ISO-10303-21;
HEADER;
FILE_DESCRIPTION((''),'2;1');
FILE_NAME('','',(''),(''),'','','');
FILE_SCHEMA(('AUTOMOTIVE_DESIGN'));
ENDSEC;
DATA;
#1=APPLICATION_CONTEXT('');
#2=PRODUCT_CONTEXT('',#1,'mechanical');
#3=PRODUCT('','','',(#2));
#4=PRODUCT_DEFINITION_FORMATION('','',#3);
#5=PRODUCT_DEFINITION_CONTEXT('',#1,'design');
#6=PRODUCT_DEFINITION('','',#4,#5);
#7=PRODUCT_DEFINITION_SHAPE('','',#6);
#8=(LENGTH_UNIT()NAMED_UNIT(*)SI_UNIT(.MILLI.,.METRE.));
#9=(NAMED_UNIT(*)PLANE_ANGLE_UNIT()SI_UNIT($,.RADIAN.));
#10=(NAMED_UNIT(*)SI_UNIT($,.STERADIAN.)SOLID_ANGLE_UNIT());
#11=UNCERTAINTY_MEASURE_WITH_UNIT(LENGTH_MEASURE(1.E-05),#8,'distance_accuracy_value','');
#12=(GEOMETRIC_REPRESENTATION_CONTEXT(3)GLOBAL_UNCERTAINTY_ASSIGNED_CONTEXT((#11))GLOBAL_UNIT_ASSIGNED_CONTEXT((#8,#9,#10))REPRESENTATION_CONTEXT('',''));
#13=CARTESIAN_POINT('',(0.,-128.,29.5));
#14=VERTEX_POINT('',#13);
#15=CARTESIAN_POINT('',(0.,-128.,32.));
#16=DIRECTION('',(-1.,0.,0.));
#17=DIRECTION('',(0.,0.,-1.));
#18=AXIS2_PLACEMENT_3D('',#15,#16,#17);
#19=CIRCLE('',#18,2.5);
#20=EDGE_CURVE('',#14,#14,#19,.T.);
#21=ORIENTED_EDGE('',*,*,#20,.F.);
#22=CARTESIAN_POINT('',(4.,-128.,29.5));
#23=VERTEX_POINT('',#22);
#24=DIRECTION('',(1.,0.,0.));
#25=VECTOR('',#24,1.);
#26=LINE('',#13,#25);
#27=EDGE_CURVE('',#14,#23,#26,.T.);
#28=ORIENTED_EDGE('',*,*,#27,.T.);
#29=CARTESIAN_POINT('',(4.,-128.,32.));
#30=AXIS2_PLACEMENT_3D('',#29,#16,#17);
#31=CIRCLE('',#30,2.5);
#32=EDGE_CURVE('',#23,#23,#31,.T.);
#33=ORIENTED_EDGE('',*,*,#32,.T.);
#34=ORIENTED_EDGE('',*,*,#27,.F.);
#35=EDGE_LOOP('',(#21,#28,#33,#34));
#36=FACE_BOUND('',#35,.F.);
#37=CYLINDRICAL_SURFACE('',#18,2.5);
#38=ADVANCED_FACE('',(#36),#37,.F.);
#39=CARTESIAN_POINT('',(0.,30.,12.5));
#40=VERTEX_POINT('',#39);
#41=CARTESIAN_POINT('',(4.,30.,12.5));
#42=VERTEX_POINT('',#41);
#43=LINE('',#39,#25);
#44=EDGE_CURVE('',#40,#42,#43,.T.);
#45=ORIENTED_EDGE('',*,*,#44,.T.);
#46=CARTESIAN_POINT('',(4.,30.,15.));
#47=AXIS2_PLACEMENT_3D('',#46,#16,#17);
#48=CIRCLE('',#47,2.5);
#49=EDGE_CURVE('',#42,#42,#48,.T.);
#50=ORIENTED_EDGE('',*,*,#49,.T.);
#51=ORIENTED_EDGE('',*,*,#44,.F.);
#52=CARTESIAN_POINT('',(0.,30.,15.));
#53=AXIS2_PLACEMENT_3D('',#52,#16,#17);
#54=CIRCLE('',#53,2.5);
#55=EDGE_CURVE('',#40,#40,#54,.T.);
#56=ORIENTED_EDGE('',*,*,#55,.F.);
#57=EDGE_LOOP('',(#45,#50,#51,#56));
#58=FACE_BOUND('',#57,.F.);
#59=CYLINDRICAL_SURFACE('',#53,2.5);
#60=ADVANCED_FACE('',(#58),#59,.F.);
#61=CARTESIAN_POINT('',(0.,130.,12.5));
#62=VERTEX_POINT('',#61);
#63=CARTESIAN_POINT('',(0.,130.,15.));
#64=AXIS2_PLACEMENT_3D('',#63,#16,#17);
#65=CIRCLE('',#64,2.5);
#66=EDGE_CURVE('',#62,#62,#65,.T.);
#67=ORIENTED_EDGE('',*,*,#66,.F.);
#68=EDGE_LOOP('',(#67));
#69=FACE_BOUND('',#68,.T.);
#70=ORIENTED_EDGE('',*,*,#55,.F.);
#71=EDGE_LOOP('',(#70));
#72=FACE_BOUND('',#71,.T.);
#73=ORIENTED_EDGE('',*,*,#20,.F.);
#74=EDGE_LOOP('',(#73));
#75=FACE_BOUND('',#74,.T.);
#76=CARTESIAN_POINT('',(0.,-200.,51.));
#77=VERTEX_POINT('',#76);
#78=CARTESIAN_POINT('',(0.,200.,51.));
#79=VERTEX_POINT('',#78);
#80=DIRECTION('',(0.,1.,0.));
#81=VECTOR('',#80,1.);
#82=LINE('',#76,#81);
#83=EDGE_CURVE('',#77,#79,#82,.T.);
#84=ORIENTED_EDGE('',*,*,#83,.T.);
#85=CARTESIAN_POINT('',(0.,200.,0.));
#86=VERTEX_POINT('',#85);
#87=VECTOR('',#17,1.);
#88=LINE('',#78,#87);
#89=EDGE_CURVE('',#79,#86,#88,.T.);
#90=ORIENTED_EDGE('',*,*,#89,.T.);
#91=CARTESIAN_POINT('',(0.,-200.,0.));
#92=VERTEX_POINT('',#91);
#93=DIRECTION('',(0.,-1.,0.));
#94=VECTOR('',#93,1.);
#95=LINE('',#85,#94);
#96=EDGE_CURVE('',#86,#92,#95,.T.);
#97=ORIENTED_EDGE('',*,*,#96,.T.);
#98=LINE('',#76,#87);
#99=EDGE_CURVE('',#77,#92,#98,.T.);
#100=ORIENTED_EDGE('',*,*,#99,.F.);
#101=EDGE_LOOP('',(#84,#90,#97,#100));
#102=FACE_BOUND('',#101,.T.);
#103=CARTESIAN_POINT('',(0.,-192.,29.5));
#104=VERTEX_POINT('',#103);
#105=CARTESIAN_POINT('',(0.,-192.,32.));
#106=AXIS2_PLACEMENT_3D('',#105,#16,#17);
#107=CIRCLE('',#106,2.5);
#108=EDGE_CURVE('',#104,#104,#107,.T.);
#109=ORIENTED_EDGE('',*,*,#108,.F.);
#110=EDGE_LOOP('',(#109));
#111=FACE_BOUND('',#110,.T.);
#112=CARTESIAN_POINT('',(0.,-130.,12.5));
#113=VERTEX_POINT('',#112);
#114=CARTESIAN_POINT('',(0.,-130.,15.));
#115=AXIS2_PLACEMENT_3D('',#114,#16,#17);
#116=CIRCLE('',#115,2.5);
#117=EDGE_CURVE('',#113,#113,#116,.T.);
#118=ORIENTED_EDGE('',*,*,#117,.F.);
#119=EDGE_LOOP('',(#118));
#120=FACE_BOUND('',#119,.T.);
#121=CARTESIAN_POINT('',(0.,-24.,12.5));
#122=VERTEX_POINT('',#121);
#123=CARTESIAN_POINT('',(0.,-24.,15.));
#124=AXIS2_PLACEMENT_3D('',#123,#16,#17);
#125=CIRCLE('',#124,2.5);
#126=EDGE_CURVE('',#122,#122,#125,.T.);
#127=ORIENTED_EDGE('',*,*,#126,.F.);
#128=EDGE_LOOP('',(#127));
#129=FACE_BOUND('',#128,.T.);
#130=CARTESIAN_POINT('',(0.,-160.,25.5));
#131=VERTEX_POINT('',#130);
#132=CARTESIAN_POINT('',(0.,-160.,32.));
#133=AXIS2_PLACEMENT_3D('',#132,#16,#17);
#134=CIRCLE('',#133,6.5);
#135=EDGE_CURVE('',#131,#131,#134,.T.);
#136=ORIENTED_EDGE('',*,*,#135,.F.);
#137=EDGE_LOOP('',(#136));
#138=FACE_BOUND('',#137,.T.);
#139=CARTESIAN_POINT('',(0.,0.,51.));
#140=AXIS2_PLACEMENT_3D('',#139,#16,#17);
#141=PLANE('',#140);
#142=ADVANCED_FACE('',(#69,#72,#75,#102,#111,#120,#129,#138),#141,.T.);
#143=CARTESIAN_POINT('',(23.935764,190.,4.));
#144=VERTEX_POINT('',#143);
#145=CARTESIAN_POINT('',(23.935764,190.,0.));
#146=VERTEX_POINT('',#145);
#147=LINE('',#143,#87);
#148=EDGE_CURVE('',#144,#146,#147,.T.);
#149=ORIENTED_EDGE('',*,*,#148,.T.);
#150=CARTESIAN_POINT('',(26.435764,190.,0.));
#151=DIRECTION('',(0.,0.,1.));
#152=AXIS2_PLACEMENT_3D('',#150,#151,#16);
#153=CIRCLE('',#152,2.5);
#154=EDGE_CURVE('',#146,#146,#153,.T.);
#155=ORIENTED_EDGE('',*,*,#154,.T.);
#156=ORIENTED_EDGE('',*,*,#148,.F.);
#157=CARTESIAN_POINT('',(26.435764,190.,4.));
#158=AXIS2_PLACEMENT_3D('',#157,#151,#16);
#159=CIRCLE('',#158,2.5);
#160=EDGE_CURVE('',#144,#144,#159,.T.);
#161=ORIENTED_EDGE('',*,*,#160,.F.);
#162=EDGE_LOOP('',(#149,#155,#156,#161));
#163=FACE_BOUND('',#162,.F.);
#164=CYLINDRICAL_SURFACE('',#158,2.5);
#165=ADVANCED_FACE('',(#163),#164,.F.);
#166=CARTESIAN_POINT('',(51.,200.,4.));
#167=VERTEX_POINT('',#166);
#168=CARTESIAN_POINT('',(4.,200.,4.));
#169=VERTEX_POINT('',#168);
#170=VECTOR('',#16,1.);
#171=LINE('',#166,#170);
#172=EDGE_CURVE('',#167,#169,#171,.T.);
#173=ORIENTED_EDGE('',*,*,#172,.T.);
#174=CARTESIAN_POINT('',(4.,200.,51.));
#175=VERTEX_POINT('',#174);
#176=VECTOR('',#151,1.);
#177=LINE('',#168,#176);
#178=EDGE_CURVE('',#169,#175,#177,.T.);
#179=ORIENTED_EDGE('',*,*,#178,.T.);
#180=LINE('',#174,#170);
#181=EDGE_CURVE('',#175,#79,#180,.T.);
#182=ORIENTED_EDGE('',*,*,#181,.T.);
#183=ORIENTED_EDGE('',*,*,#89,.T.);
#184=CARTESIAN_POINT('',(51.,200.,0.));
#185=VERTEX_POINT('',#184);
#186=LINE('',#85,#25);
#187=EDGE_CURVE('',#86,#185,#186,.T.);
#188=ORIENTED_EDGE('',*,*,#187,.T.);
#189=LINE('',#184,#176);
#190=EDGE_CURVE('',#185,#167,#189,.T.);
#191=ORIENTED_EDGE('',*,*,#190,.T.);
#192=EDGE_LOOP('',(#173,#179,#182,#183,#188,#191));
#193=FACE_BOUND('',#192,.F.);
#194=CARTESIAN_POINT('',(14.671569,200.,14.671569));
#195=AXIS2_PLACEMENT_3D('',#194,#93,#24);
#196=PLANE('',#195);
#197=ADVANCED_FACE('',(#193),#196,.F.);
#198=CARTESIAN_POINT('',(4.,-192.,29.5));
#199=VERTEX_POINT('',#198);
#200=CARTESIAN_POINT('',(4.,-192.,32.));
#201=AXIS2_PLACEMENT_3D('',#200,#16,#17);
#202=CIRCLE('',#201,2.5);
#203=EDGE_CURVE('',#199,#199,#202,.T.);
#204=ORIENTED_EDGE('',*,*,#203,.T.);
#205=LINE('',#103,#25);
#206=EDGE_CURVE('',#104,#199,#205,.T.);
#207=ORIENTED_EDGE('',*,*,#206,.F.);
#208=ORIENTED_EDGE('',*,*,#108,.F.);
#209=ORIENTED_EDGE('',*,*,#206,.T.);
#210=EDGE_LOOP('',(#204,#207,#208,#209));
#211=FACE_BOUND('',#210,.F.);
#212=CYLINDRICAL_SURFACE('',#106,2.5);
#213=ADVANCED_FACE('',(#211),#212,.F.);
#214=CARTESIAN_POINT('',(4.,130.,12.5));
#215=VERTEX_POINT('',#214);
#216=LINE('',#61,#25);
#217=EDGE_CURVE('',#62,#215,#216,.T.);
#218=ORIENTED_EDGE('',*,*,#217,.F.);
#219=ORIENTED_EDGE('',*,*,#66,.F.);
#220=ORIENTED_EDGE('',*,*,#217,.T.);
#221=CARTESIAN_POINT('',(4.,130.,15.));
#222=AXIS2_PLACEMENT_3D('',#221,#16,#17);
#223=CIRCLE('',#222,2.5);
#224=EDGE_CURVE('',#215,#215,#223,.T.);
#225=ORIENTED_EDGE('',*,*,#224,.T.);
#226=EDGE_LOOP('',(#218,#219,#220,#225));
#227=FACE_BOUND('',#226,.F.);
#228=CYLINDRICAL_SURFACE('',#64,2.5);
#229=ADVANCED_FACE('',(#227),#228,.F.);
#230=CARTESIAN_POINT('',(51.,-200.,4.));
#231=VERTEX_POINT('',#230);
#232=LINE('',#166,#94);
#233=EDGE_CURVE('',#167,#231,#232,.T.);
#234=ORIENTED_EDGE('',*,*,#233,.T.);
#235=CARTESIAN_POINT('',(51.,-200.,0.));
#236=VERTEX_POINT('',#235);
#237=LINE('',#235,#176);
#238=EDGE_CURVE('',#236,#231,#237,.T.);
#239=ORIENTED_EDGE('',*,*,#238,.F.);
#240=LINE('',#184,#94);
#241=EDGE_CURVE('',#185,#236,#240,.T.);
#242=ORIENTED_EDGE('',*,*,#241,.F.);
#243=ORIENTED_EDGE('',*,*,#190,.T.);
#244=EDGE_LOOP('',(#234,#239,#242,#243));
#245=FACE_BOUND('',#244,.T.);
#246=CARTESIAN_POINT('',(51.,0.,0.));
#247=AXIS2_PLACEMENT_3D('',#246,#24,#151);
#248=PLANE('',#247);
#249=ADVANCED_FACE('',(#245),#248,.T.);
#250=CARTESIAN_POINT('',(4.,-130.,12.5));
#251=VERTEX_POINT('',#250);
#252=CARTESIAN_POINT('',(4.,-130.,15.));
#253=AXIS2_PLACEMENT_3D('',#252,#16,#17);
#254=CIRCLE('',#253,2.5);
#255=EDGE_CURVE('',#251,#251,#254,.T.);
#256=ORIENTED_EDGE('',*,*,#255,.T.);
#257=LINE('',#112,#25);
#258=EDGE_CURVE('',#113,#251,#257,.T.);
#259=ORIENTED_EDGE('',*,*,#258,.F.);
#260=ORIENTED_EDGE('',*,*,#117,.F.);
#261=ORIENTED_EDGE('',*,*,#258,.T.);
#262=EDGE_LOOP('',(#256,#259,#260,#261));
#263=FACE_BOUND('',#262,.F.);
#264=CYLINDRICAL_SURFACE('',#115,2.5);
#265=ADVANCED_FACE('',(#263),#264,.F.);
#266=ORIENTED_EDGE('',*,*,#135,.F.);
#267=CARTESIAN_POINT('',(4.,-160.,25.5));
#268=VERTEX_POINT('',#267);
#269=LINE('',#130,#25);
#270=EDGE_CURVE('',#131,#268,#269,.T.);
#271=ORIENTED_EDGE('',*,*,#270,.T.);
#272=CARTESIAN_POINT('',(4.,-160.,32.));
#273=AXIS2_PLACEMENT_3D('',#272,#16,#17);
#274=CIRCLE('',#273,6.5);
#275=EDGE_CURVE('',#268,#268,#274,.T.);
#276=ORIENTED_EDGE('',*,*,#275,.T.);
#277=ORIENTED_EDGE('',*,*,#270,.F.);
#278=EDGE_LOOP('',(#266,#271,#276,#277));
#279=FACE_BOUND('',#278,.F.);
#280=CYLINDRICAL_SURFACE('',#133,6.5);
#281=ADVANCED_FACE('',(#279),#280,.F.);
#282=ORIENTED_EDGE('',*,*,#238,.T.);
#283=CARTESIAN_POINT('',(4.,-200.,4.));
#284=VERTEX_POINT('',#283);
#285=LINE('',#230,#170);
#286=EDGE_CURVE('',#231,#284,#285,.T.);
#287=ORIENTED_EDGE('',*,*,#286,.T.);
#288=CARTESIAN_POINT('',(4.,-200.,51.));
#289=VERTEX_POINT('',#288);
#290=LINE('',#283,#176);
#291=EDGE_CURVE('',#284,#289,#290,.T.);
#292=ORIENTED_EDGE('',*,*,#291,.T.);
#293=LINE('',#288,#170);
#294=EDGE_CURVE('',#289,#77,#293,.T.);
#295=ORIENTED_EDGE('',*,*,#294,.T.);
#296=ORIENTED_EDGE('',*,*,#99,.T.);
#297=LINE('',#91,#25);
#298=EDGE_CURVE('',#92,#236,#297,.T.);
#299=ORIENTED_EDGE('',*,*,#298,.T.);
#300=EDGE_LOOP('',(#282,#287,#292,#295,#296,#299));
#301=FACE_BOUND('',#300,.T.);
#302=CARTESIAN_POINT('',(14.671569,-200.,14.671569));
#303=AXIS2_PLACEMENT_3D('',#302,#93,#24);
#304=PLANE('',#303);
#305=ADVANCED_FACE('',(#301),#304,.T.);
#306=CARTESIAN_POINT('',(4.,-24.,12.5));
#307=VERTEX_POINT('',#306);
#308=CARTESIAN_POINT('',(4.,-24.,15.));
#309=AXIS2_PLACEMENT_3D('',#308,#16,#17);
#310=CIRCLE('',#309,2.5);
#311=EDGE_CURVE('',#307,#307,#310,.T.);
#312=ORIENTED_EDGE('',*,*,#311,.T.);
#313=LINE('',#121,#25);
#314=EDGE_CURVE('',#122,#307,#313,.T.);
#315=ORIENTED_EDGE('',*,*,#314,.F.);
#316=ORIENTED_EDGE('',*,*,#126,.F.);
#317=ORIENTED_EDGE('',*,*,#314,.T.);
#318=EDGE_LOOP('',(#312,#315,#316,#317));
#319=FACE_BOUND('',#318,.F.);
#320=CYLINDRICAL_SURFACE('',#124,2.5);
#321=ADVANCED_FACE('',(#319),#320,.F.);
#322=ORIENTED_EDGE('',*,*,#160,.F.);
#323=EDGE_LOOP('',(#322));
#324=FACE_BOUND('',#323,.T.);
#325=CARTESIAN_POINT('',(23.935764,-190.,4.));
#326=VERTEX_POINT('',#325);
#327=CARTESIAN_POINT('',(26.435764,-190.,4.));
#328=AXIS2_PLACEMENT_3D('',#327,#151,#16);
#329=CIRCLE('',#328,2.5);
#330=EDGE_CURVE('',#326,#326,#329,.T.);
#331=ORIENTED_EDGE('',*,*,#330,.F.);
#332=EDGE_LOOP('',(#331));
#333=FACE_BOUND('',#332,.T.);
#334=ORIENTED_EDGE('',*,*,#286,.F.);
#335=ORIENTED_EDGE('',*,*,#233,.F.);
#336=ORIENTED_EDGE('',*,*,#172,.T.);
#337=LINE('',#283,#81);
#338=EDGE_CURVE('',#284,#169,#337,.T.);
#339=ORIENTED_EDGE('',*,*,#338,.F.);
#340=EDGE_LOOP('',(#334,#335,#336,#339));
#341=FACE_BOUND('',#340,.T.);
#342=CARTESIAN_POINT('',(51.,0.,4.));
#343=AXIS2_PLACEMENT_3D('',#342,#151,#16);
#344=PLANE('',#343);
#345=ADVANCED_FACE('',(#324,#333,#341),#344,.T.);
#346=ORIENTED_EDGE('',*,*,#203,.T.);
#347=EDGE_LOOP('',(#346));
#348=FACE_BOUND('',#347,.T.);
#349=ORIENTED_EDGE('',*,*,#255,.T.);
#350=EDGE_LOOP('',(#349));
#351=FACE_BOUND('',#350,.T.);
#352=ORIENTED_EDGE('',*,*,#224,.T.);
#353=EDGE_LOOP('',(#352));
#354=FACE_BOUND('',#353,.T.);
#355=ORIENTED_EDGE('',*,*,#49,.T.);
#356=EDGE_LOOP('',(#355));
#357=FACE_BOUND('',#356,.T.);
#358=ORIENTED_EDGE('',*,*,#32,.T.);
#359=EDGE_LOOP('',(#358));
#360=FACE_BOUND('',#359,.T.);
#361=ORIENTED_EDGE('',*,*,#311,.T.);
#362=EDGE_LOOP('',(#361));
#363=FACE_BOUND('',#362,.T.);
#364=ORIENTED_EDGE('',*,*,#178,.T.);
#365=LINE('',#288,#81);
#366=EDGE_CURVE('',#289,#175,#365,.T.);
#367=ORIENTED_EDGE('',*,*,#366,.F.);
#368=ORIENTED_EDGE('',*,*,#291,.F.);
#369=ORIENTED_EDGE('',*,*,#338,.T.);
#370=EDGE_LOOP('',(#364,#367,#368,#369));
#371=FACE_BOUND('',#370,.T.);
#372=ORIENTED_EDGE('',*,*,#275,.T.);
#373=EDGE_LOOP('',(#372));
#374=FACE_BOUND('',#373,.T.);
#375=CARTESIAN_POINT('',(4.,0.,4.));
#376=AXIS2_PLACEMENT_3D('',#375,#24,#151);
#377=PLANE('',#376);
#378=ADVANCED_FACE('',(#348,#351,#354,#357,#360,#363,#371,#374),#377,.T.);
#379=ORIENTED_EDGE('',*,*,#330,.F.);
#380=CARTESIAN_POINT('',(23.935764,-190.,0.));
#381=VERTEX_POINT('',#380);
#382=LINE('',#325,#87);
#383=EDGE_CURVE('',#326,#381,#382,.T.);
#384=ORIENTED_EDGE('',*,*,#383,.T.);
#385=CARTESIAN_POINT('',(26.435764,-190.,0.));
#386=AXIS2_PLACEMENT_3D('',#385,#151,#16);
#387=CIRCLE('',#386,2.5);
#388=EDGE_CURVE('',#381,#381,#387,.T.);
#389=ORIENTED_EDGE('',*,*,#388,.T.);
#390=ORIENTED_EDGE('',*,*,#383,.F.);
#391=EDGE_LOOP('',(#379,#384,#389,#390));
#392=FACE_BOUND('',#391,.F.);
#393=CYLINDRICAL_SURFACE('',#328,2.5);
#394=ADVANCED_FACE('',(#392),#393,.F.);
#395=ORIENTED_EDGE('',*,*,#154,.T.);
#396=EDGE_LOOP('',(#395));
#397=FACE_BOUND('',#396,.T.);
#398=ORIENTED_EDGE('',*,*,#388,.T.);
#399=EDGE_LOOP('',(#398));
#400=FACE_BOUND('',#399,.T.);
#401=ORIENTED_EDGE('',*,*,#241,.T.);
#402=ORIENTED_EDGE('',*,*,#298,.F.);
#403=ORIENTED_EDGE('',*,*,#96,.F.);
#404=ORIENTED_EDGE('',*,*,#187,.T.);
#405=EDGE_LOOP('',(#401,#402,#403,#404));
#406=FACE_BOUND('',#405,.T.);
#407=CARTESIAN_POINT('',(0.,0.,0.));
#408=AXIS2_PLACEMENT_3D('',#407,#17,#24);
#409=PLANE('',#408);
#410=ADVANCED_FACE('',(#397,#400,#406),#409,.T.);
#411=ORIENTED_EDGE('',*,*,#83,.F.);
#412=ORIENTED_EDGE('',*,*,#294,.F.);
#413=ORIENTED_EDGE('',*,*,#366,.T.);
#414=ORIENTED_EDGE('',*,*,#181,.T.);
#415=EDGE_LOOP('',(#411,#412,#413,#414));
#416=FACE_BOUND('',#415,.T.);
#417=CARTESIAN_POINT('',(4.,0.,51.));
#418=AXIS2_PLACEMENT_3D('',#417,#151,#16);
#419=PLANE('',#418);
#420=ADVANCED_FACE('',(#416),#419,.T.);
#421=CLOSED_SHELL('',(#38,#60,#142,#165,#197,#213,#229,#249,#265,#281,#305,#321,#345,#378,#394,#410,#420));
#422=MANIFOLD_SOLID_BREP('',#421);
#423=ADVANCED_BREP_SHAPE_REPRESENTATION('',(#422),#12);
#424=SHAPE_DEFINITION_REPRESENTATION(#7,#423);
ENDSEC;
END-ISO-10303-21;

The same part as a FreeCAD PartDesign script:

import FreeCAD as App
import Part
import Sketcher
from FreeCAD import Vector
Q = App.Units.Quantity


def add_polygon(sketch, points):
    """Adds a closed chain of lines whose ends are joined by coincident constraints."""
    first, n = sketch.GeometryCount, len(points)
    for a, b in zip(points, points[1:] + points[:1]):
        sketch.addGeometry(Part.LineSegment(App.Vector(*a, 0), App.Vector(*b, 0)), False)
    for i in range(n):
        sketch.addConstraint(Sketcher.Constraint("Coincident", first + i, 2, first + (i + 1) % n, 1))

doc = App.newDocument("Part")
body = doc.addObject("PartDesign::Body", "Body")

# Sketch on XZ plane
sketch1 = doc.addObject("Sketcher::SketchObject", "Sketch")
body.addObject(sketch1)
sketch1.AttachmentSupport = (doc.XZ_Plane, [""])
sketch1.MapMode = "FlatFace"
add_polygon(sketch1, [(0, 51), (0, 0), (51, 0), (51, 4), (4, 4), (4, 51)])  # lines 0-5
sketch1.addConstraint([
    Sketcher.Constraint("Vertical", 0),
    Sketcher.Constraint("Horizontal", 1),
    Sketcher.Constraint("Vertical", 2),
    Sketcher.Constraint("Horizontal", 3),
    Sketcher.Constraint("Vertical", 4),
    Sketcher.Constraint("Horizontal", 5),
    Sketcher.Constraint("Coincident", 0, 2, -1, 1),
    Sketcher.Constraint("Equal", 1, 0),
    Sketcher.Constraint("Equal", 5, 2),
    Sketcher.Constraint("DistanceX", 1, 1, 1, 2, Q("51 mm")),
    Sketcher.Constraint("DistanceX", 3, 2, 3, 1, Q("47 mm")),
])
pad1 = doc.addObject("PartDesign::Pad", "Pad")
body.addObject(pad1)
pad1.Profile = sketch1
pad1.Length = 400
pad1.Midplane = True

# Sketch on XY plane
sketch2 = doc.addObject("Sketcher::SketchObject", "Sketch001")
body.addObject(sketch2)
sketch2.AttachmentSupport = (doc.XY_Plane, [""])
sketch2.MapMode = "FlatFace"
sketch2.AttachmentOffset = App.Placement(Vector(0, 0, 4), App.Rotation())
sketch2.addGeometry([
    Part.Circle(Vector(26.435764, -190, 0), Vector(0, 0, 1), 2.5),
    Part.Circle(Vector(26.435764, 190, 0), Vector(0, 0, 1), 2.5),
], False)
sketch2.addConstraint([
    Sketcher.Constraint("Equal", 0, 1),
    Sketcher.Constraint("Symmetric", 0, 3, 1, 3, -1),
    Sketcher.Constraint("Diameter", 0, Q("5 mm")),
    Sketcher.Constraint("DistanceY", 0, 3, -1, 1, Q("190 mm")),
    Sketcher.Constraint("DistanceX", -1, 1, 0, 3, Q("26.435764 mm")),
])
pocket1 = doc.addObject("PartDesign::Pocket", "Pocket")
body.addObject(pocket1)
pocket1.Profile = sketch2
pocket1.Type = "ThroughAll"
pocket1.Midplane = True

# Sketch on YZ plane
sketch3 = doc.addObject("Sketcher::SketchObject", "Sketch002")
body.addObject(sketch3)
sketch3.AttachmentSupport = (doc.YZ_Plane, [""])
sketch3.MapMode = "FlatFace"
sketch3.addGeometry([
    Part.Circle(Vector(-130, 15, 0), Vector(0, 0, 1), 2.5),  # 0
    Part.Circle(Vector(130, 15, 0), Vector(0, 0, 1), 2.5),  # 1
    Part.Circle(Vector(30, 15, 0), Vector(0, 0, 1), 2.5),  # 2
    Part.Circle(Vector(-24, 15, 0), Vector(0, 0, 1), 2.5),  # 3
    Part.Circle(Vector(-160, 32, 0), Vector(0, 0, 1), 6.5),  # 4
    Part.Circle(Vector(-192, 32, 0), Vector(0, 0, 1), 2.5),  # 5
    Part.Circle(Vector(-128, 32, 0), Vector(0, 0, 1), 2.5),  # 6
], False)
sketch3.addConstraint([
    Sketcher.Constraint("Equal", 0, 1),
    Sketcher.Constraint("Equal", 1, 2),
    Sketcher.Constraint("Equal", 2, 3),
    Sketcher.Constraint("Equal", 3, 5),
    Sketcher.Constraint("Equal", 5, 6),
    Sketcher.Constraint("Symmetric", 0, 3, 1, 3, -2),
    Sketcher.Constraint("Horizontal", 1, 3, 2, 3),
    Sketcher.Constraint("Horizontal", 2, 3, 3, 3),
    Sketcher.Constraint("Horizontal", 4, 3, 5, 3),
    Sketcher.Constraint("Horizontal", 5, 3, 6, 3),
    Sketcher.Constraint("Diameter", 0, Q("5 mm")),
    Sketcher.Constraint("Diameter", 4, Q("13 mm")),
    Sketcher.Constraint("DistanceX", 0, 3, -1, 1, Q("130 mm")),
    Sketcher.Constraint("DistanceY", -1, 1, 0, 3, Q("15 mm")),
    Sketcher.Constraint("DistanceX", -1, 1, 2, 3, Q("30 mm")),
    Sketcher.Constraint("DistanceX", 3, 3, -1, 1, Q("24 mm")),
    Sketcher.Constraint("DistanceX", 4, 3, -1, 1, Q("160 mm")),
    Sketcher.Constraint("DistanceY", -1, 1, 4, 3, Q("32 mm")),
    Sketcher.Constraint("DistanceX", 5, 3, -1, 1, Q("192 mm")),
    Sketcher.Constraint("DistanceX", 6, 3, -1, 1, Q("128 mm")),
])
pocket2 = doc.addObject("PartDesign::Pocket", "Pocket001")
body.addObject(pocket2)
pocket2.Profile = sketch3
pocket2.Type = "ThroughAll"
pocket2.Reversed = True

doc.recompute()
